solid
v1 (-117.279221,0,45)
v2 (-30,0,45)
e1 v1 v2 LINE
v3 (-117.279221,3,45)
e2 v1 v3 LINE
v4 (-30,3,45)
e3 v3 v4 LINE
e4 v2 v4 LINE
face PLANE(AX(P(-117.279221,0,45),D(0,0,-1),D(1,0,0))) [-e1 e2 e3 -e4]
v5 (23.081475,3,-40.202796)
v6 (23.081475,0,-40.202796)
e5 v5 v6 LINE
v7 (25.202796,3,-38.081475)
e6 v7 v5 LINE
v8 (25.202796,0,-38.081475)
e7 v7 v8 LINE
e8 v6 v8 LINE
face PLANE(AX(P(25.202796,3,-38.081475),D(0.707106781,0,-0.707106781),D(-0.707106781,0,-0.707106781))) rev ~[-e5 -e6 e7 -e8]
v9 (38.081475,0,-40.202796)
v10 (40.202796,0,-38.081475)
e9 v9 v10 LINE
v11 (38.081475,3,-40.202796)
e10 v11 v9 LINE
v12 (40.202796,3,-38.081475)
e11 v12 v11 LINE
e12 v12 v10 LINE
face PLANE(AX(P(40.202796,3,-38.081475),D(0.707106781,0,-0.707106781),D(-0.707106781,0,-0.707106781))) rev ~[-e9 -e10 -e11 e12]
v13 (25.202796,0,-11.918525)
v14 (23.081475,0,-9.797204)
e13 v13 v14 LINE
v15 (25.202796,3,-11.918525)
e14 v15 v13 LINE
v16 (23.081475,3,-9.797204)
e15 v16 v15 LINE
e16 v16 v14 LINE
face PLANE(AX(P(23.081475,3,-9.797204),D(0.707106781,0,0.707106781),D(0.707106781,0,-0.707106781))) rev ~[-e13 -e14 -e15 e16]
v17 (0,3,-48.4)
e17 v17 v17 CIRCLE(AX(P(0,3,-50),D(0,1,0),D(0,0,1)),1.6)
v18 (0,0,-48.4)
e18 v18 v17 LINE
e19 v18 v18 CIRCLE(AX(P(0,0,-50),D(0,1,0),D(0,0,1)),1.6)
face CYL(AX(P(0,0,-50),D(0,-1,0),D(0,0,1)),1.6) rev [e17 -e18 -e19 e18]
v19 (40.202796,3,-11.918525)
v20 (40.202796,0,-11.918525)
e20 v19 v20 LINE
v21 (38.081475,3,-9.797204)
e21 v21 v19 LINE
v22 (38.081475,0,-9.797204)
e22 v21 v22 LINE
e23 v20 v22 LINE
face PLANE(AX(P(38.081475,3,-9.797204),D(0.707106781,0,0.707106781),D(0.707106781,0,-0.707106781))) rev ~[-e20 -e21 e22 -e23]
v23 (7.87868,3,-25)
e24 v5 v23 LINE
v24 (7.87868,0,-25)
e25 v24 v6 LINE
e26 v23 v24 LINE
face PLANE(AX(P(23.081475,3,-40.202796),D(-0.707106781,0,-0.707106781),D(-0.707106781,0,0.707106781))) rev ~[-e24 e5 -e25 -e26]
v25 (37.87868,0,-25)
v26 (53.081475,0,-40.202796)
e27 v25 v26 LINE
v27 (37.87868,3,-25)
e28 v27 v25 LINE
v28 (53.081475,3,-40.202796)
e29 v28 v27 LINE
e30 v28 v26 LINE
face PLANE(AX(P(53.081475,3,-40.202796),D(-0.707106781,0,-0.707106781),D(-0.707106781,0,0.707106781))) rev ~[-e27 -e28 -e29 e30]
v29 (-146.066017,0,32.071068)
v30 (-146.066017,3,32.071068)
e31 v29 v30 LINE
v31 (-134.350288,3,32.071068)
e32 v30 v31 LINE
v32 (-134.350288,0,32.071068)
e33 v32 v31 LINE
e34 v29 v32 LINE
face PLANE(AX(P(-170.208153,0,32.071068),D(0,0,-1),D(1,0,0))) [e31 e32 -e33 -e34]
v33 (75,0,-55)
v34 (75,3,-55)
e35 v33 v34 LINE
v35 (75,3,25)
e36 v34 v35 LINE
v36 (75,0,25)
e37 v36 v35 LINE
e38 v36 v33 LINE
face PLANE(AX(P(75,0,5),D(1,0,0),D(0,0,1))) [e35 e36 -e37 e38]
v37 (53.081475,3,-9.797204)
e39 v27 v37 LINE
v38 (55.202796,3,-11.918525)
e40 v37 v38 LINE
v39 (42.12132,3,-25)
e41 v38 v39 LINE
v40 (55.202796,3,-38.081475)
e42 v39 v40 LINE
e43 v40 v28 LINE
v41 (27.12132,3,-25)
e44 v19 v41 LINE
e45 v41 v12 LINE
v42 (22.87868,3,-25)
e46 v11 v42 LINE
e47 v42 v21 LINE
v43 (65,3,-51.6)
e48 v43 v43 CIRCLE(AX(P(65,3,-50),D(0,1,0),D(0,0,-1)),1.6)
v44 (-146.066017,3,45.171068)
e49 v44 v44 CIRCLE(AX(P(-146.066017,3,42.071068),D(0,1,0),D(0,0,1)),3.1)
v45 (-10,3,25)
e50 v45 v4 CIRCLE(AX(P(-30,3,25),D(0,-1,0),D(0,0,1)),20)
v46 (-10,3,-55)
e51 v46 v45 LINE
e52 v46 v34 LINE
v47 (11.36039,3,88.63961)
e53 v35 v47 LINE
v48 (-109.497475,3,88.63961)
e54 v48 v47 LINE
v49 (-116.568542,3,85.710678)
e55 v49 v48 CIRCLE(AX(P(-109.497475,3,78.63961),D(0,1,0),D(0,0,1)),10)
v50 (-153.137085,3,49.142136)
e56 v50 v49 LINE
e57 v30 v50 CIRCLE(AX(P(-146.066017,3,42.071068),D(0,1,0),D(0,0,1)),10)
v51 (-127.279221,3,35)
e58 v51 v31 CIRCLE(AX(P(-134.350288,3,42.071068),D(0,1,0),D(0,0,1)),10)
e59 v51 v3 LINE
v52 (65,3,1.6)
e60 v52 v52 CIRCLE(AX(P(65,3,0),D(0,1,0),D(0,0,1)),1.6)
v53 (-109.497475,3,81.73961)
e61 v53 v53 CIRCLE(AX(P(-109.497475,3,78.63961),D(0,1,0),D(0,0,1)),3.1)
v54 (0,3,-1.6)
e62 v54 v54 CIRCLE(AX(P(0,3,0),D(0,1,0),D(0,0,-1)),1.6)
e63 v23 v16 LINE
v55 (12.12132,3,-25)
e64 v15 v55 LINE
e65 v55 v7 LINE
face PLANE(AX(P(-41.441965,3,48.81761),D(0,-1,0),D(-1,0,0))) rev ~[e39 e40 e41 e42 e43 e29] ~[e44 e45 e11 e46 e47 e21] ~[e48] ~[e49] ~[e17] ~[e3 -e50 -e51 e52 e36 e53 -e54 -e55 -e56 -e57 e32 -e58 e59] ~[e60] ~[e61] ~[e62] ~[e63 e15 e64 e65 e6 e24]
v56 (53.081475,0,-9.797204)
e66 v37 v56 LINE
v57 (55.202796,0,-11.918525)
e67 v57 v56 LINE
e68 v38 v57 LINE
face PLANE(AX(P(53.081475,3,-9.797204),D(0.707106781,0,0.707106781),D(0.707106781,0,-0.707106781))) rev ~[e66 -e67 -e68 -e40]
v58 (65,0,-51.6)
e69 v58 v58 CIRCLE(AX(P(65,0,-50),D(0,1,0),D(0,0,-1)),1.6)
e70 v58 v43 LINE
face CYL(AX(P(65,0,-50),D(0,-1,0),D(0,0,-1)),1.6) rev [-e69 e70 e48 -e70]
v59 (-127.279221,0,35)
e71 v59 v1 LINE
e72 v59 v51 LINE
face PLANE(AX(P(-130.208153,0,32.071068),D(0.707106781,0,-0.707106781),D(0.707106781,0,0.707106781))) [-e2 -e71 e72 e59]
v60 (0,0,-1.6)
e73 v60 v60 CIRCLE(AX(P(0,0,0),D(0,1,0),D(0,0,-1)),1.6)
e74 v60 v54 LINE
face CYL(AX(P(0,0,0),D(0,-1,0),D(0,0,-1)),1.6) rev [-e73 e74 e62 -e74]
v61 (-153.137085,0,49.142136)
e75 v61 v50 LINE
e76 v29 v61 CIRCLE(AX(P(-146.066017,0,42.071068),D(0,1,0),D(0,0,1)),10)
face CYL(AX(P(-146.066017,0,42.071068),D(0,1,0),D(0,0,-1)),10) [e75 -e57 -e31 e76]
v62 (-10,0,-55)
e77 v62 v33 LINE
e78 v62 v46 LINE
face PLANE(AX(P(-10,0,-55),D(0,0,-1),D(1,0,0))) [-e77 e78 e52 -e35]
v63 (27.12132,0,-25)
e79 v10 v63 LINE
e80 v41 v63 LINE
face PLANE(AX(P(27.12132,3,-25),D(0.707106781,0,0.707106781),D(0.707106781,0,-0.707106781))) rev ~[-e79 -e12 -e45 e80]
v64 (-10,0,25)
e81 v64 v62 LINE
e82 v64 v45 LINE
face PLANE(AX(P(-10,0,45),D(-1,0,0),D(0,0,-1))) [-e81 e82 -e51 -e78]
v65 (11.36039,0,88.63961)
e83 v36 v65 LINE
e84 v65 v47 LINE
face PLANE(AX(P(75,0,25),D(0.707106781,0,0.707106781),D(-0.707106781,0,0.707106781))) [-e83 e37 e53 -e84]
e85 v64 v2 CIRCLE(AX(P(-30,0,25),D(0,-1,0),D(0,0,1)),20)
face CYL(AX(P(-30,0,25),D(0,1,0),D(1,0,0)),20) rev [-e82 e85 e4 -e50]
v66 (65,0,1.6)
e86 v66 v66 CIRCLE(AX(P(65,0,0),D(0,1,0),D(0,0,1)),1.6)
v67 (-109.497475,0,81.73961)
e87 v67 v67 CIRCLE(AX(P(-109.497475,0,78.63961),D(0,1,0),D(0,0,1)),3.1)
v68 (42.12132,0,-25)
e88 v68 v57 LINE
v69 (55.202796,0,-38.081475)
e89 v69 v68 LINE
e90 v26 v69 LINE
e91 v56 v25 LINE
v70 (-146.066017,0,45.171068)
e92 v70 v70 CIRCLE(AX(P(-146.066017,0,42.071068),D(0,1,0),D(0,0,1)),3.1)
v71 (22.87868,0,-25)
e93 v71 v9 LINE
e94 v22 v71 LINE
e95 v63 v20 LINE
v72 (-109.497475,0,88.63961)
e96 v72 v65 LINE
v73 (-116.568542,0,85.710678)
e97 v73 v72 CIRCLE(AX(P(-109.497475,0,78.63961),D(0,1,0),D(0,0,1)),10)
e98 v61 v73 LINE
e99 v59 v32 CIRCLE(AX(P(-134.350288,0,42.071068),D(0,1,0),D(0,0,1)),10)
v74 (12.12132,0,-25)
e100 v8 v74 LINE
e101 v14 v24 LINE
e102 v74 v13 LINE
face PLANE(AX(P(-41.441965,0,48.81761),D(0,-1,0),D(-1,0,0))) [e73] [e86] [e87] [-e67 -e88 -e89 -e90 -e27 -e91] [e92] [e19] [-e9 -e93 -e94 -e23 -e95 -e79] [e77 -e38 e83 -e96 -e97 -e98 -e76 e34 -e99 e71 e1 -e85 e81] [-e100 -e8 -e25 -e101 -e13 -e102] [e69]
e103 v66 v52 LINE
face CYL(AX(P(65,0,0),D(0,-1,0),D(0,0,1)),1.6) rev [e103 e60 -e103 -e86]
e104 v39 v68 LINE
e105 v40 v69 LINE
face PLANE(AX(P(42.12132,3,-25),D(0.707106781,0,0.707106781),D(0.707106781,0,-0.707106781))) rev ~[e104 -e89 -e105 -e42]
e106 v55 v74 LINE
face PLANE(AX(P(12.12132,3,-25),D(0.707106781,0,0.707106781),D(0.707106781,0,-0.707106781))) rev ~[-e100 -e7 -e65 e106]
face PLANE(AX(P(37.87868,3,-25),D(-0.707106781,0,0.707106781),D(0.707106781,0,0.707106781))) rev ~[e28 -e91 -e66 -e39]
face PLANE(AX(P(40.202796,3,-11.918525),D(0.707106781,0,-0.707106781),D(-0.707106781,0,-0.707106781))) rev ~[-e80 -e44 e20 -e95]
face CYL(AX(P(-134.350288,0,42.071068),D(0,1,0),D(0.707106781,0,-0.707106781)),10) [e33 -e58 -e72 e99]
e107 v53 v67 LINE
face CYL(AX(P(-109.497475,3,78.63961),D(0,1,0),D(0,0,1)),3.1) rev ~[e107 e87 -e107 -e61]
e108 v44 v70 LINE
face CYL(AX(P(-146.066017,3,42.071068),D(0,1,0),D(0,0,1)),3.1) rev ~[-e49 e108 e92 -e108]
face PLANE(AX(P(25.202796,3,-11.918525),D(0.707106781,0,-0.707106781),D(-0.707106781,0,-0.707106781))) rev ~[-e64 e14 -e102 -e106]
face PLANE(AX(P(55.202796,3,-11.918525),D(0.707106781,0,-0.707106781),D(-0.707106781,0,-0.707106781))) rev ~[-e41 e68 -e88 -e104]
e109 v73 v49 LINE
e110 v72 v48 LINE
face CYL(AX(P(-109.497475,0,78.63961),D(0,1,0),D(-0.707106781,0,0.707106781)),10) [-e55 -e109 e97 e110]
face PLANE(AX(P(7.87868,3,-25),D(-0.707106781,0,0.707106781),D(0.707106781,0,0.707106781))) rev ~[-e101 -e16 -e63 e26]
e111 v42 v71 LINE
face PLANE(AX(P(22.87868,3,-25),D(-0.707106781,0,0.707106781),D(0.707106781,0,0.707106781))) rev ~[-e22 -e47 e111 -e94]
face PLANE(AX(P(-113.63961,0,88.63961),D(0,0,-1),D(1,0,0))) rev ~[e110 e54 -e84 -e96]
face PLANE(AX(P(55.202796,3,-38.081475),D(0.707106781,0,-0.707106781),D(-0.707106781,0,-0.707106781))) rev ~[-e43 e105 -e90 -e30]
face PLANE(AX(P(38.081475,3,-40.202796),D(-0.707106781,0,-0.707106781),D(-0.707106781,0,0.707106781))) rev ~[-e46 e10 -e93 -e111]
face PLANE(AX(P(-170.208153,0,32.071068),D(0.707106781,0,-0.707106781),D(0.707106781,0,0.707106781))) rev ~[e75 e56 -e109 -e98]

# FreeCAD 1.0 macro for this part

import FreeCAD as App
import Part
import Sketcher

V = App.Vector
Q = App.Units.Quantity


def edges_at(feature, points):
    """Names of the edges that pass closest to the given points."""
    edges = feature.Shape.Edges
    near = lambda p: min(range(len(edges)), key=lambda i: edges[i].distToShape(Part.Vertex(*p))[0])
    return sorted({f"Edge{near(p) + 1}" for p in points})


def add_polygon(sketch, points):
    """Adds a closed chain of lines whose ends are joined by coincident constraints."""
    first, n = sketch.GeometryCount, len(points)
    for a, b in zip(points, points[1:] + points[:1]):
        sketch.addGeometry(Part.LineSegment(App.Vector(*a, 0), App.Vector(*b, 0)), False)
    for i in range(n):
        sketch.addConstraint(Sketcher.Constraint("Coincident", first + i, 2, first + (i + 1) % n, 1))

doc = App.newDocument("Part")
body = doc.addObject("PartDesign::Body", "Body")

# Sketch on XZ plane
sketch1 = body.newObject("Sketcher::SketchObject", "Sketch")
sketch1.AttachmentSupport = (doc.getObject("XZ_Plane"), [""])
sketch1.MapMode = "FlatFace"
add_polygon(sketch1, [(-10, -55), (-10, 5), (75, 5), (75, -55)])  # lines 0-3
sketch1.addGeometry(Part.Circle(V(0, 0, 0), V(0, 0, 1), 1.6), False)  # 4
sketch1.addGeometry(Part.Circle(V(65, 0, 0), V(0, 0, 1), 1.6), False)  # 5
sketch1.addGeometry(Part.Circle(V(0, -50, 0), V(0, 0, 1), 1.6), False)  # 6
sketch1.addGeometry(Part.Circle(V(65, -50, 0), V(0, 0, 1), 1.6), False)  # 7
sketch1.addConstraint([
    Sketcher.Constraint("Vertical", 0),
    Sketcher.Constraint("Horizontal", 1),
    Sketcher.Constraint("Vertical", 2),
    Sketcher.Constraint("Horizontal", 3),
    Sketcher.Constraint("Coincident", 4, 3, -1, 1),
    Sketcher.Constraint("Equal", 4, 5),
    Sketcher.Constraint("Equal", 5, 6),
    Sketcher.Constraint("Equal", 6, 7),
    Sketcher.Constraint("PointOnObject", 5, 3, -1),
    Sketcher.Constraint("PointOnObject", 6, 3, -2),
    Sketcher.Constraint("Horizontal", 6, 3, 7, 3),
    Sketcher.Constraint("Vertical", 5, 3, 7, 3),
    Sketcher.Constraint("Diameter", 4, Q("3.2 mm")),
    Sketcher.Constraint("DistanceX", 1, 1, 1, 2, Q("85 mm")),
    Sketcher.Constraint("DistanceY", 0, 1, 0, 2, Q("60 mm")),
    Sketcher.Constraint("DistanceX", -1, 1, 5, 3, Q("65 mm")),
    Sketcher.Constraint("DistanceY", 6, 3, -1, 1, Q("50 mm")),
    Sketcher.Constraint("DistanceX", 0, 2, -1, 1, Q("10 mm")),
    Sketcher.Constraint("DistanceY", -1, 1, 0, 2, Q("5 mm")),
])
pad1 = body.newObject("PartDesign::Pad", "Pad")
pad1.Profile = sketch1
pad1.Length = 3
pad1.Reversed = True

# Sketch on XZ plane
sketch2 = body.newObject("Sketcher::SketchObject", "Sketch001")
sketch2.AttachmentSupport = (doc.getObject("XZ_Plane"), [""])
sketch2.MapMode = "FlatFace"
add_polygon(sketch2, [(75, 5), (-10, 5), (-10, 45), (-117.279221, 45), (-130.208153, 32.071068), (-170.208153, 32.071068), (-113.63961, 88.63961), (11.36039, 88.63961), (75, 25)])  # lines 0-8
sketch2.addConstraint([
    Sketcher.Constraint("Horizontal", 0),
    Sketcher.Constraint("Vertical", 1),
    Sketcher.Constraint("Horizontal", 2),
    Sketcher.Constraint("Horizontal", 4),
    Sketcher.Constraint("Horizontal", 6),
    Sketcher.Constraint("Vertical", 8),
    Sketcher.Constraint("Parallel", 3, 5),
    Sketcher.Constraint("Perpendicular", 5, 7),
    Sketcher.Constraint("Equal", 4, 1),
    Sketcher.Constraint("DistanceX", 0, 2, 0, 1, Q("85 mm")),
    Sketcher.Constraint("DistanceX", 4, 2, 4, 1, Q("40 mm")),
    Sketcher.Constraint("DistanceX", 6, 1, 6, 2, Q("125 mm")),
    Sketcher.Constraint("DistanceY", 8, 2, 8, 1, Q("20 mm")),
    Sketcher.Constraint("Angle", 3, Q("-135 deg")),
    Sketcher.Constraint("Distance", 5, Q("80 mm")),
    Sketcher.Constraint("Distance", 7, Q("90 mm")),
    Sketcher.Constraint("DistanceX", 0, 2, -1, 1, Q("10 mm")),
    Sketcher.Constraint("DistanceY", -1, 1, 0, 2, Q("5 mm")),
])
pad2 = body.newObject("PartDesign::Pad", "Pad001")
pad2.Profile = sketch2
pad2.Length = 3
pad2.Reversed = True
doc.recompute()

fillet = body.newObject("PartDesign::Fillet", "Fillet")
fillet.Base = (pad2, edges_at(pad2, [(-10, 1.5, 45)]))
fillet.Radius = 20
doc.recompute()

fillet2 = body.newObject("PartDesign::Fillet", "Fillet001")
fillet2.Base = (fillet, edges_at(fillet, [(-130.208, 1.5, 32.071), (-170.208, 1.5, 32.071), (-113.64, 1.5, 88.64)]))
fillet2.Radius = 10

# Sketch on XZ plane
sketch3 = body.newObject("Sketcher::SketchObject", "Sketch002")
sketch3.AttachmentSupport = (doc.getObject("XZ_Plane"), [""])
sketch3.MapMode = "FlatFace"
sketch3.AttachmentOffset = App.Placement(V(0, 0, -3), App.Rotation())
sketch3.addGeometry([
    Part.Circle(V(-146.066017, 42.071068, 0), V(0, 0, 1), 3.1),
    Part.Circle(V(-109.497475, 78.63961, 0), V(0, 0, 1), 3.1),
], False)
sketch3.addConstraint([
    Sketcher.Constraint("Equal", 0, 1),
    Sketcher.Constraint("Diameter", 0, Q("6.2 mm")),
    Sketcher.Constraint("DistanceY", -1, 1, 1, 3, Q("78.63961 mm")),
    Sketcher.Constraint("DistanceX", 0, 3, -1, 1, Q("146.066017 mm")),
    Sketcher.Constraint("DistanceY", -1, 1, 0, 3, Q("42.071068 mm")),
    Sketcher.Constraint("DistanceX", 1, 3, -1, 1, Q("109.497475 mm")),
])
pocket1 = body.newObject("PartDesign::Pocket", "Pocket")
pocket1.Profile = sketch3
pocket1.Length = 10
pocket1.Reversed = True

# Sketch on XZ plane
sketch4 = body.newObject("Sketcher::SketchObject", "Sketch003")
sketch4.AttachmentSupport = (doc.getObject("XZ_Plane"), [""])
sketch4.MapMode = "FlatFace"
sketch4.AttachmentOffset = App.Placement(V(0, 0, -3), App.Rotation())
add_polygon(sketch4, [(25.202796, -11.918525), (12.12132, -25), (25.202796, -38.081475), (23.081475, -40.202796), (7.87868, -25), (23.081475, -9.797204)])  # lines 0-5
add_polygon(sketch4, [(40.202796, -11.918525), (27.12132, -25), (40.202796, -38.081475), (38.081475, -40.202796), (22.87868, -25), (38.081475, -9.797204)])  # lines 6-11
add_polygon(sketch4, [(55.202796, -11.918525), (42.12132, -25), (55.202796, -38.081475), (53.081475, -40.202796), (37.87868, -25), (53.081475, -9.797204)])  # lines 12-17
sketch4.addConstraint([
    Sketcher.Constraint("Perpendicular", 0, 1),
    Sketcher.Constraint("Perpendicular", 1, 2),
    Sketcher.Constraint("Perpendicular", 2, 3),
    Sketcher.Constraint("Perpendicular", 3, 4),
    Sketcher.Constraint("Perpendicular", 4, 5),
    Sketcher.Constraint("Perpendicular", 5, 6),
    Sketcher.Constraint("Perpendicular", 6, 7),
    Sketcher.Constraint("Perpendicular", 7, 8),
    Sketcher.Constraint("Perpendicular", 8, 9),
    Sketcher.Constraint("Perpendicular", 9, 10),
    Sketcher.Constraint("Perpendicular", 10, 11),
    Sketcher.Constraint("Perpendicular", 11, 12),
    Sketcher.Constraint("Perpendicular", 12, 13),
    Sketcher.Constraint("Perpendicular", 13, 14),
    Sketcher.Constraint("Perpendicular", 14, 15),
    Sketcher.Constraint("Perpendicular", 15, 16),
    Sketcher.Constraint("Perpendicular", 16, 17),
    Sketcher.Constraint("Horizontal", 0, 2, 3, 2),
    Sketcher.Constraint("Horizontal", 3, 2, 6, 2),
    Sketcher.Constraint("Horizontal", 1, 2, 7, 2),
    Sketcher.Constraint("Horizontal", 2, 2, 8, 2),
    Sketcher.Constraint("Horizontal", 6, 2, 9, 2),
    Sketcher.Constraint("Horizontal", 4, 2, 10, 2),
    Sketcher.Constraint("Horizontal", 9, 2, 12, 2),
    Sketcher.Constraint("Horizontal", 7, 2, 13, 2),
    Sketcher.Constraint("Horizontal", 8, 2, 14, 2),
    Sketcher.Constraint("Horizontal", 12, 2, 15, 2),
    Sketcher.Constraint("Horizontal", 10, 2, 16, 2),
    Sketcher.Constraint("Vertical", 2, 2, 4, 2),
    Sketcher.Constraint("Vertical", 1, 2, 5, 2),
    Sketcher.Constraint("Distance", 2, Q("3 mm")),
    Sketcher.Constraint("DistanceY", 0, 2, -1, 1, Q("25 mm")),
    Sketcher.Constraint("DistanceX", 0, 2, 6, 2, Q("15 mm")),
    Sketcher.Constraint("DistanceX", 6, 2, 12, 2, Q("15 mm")),
    Sketcher.Constraint("Distance", 0, Q("18.5 mm")),
    Sketcher.Constraint("DistanceX", -1, 1, 0, 2, Q("12.12132 mm")),
])
pocket2 = body.newObject("PartDesign::Pocket", "Pocket001")
pocket2.Profile = sketch4
pocket2.Length = 10
pocket2.Reversed = True

doc.recompute()
